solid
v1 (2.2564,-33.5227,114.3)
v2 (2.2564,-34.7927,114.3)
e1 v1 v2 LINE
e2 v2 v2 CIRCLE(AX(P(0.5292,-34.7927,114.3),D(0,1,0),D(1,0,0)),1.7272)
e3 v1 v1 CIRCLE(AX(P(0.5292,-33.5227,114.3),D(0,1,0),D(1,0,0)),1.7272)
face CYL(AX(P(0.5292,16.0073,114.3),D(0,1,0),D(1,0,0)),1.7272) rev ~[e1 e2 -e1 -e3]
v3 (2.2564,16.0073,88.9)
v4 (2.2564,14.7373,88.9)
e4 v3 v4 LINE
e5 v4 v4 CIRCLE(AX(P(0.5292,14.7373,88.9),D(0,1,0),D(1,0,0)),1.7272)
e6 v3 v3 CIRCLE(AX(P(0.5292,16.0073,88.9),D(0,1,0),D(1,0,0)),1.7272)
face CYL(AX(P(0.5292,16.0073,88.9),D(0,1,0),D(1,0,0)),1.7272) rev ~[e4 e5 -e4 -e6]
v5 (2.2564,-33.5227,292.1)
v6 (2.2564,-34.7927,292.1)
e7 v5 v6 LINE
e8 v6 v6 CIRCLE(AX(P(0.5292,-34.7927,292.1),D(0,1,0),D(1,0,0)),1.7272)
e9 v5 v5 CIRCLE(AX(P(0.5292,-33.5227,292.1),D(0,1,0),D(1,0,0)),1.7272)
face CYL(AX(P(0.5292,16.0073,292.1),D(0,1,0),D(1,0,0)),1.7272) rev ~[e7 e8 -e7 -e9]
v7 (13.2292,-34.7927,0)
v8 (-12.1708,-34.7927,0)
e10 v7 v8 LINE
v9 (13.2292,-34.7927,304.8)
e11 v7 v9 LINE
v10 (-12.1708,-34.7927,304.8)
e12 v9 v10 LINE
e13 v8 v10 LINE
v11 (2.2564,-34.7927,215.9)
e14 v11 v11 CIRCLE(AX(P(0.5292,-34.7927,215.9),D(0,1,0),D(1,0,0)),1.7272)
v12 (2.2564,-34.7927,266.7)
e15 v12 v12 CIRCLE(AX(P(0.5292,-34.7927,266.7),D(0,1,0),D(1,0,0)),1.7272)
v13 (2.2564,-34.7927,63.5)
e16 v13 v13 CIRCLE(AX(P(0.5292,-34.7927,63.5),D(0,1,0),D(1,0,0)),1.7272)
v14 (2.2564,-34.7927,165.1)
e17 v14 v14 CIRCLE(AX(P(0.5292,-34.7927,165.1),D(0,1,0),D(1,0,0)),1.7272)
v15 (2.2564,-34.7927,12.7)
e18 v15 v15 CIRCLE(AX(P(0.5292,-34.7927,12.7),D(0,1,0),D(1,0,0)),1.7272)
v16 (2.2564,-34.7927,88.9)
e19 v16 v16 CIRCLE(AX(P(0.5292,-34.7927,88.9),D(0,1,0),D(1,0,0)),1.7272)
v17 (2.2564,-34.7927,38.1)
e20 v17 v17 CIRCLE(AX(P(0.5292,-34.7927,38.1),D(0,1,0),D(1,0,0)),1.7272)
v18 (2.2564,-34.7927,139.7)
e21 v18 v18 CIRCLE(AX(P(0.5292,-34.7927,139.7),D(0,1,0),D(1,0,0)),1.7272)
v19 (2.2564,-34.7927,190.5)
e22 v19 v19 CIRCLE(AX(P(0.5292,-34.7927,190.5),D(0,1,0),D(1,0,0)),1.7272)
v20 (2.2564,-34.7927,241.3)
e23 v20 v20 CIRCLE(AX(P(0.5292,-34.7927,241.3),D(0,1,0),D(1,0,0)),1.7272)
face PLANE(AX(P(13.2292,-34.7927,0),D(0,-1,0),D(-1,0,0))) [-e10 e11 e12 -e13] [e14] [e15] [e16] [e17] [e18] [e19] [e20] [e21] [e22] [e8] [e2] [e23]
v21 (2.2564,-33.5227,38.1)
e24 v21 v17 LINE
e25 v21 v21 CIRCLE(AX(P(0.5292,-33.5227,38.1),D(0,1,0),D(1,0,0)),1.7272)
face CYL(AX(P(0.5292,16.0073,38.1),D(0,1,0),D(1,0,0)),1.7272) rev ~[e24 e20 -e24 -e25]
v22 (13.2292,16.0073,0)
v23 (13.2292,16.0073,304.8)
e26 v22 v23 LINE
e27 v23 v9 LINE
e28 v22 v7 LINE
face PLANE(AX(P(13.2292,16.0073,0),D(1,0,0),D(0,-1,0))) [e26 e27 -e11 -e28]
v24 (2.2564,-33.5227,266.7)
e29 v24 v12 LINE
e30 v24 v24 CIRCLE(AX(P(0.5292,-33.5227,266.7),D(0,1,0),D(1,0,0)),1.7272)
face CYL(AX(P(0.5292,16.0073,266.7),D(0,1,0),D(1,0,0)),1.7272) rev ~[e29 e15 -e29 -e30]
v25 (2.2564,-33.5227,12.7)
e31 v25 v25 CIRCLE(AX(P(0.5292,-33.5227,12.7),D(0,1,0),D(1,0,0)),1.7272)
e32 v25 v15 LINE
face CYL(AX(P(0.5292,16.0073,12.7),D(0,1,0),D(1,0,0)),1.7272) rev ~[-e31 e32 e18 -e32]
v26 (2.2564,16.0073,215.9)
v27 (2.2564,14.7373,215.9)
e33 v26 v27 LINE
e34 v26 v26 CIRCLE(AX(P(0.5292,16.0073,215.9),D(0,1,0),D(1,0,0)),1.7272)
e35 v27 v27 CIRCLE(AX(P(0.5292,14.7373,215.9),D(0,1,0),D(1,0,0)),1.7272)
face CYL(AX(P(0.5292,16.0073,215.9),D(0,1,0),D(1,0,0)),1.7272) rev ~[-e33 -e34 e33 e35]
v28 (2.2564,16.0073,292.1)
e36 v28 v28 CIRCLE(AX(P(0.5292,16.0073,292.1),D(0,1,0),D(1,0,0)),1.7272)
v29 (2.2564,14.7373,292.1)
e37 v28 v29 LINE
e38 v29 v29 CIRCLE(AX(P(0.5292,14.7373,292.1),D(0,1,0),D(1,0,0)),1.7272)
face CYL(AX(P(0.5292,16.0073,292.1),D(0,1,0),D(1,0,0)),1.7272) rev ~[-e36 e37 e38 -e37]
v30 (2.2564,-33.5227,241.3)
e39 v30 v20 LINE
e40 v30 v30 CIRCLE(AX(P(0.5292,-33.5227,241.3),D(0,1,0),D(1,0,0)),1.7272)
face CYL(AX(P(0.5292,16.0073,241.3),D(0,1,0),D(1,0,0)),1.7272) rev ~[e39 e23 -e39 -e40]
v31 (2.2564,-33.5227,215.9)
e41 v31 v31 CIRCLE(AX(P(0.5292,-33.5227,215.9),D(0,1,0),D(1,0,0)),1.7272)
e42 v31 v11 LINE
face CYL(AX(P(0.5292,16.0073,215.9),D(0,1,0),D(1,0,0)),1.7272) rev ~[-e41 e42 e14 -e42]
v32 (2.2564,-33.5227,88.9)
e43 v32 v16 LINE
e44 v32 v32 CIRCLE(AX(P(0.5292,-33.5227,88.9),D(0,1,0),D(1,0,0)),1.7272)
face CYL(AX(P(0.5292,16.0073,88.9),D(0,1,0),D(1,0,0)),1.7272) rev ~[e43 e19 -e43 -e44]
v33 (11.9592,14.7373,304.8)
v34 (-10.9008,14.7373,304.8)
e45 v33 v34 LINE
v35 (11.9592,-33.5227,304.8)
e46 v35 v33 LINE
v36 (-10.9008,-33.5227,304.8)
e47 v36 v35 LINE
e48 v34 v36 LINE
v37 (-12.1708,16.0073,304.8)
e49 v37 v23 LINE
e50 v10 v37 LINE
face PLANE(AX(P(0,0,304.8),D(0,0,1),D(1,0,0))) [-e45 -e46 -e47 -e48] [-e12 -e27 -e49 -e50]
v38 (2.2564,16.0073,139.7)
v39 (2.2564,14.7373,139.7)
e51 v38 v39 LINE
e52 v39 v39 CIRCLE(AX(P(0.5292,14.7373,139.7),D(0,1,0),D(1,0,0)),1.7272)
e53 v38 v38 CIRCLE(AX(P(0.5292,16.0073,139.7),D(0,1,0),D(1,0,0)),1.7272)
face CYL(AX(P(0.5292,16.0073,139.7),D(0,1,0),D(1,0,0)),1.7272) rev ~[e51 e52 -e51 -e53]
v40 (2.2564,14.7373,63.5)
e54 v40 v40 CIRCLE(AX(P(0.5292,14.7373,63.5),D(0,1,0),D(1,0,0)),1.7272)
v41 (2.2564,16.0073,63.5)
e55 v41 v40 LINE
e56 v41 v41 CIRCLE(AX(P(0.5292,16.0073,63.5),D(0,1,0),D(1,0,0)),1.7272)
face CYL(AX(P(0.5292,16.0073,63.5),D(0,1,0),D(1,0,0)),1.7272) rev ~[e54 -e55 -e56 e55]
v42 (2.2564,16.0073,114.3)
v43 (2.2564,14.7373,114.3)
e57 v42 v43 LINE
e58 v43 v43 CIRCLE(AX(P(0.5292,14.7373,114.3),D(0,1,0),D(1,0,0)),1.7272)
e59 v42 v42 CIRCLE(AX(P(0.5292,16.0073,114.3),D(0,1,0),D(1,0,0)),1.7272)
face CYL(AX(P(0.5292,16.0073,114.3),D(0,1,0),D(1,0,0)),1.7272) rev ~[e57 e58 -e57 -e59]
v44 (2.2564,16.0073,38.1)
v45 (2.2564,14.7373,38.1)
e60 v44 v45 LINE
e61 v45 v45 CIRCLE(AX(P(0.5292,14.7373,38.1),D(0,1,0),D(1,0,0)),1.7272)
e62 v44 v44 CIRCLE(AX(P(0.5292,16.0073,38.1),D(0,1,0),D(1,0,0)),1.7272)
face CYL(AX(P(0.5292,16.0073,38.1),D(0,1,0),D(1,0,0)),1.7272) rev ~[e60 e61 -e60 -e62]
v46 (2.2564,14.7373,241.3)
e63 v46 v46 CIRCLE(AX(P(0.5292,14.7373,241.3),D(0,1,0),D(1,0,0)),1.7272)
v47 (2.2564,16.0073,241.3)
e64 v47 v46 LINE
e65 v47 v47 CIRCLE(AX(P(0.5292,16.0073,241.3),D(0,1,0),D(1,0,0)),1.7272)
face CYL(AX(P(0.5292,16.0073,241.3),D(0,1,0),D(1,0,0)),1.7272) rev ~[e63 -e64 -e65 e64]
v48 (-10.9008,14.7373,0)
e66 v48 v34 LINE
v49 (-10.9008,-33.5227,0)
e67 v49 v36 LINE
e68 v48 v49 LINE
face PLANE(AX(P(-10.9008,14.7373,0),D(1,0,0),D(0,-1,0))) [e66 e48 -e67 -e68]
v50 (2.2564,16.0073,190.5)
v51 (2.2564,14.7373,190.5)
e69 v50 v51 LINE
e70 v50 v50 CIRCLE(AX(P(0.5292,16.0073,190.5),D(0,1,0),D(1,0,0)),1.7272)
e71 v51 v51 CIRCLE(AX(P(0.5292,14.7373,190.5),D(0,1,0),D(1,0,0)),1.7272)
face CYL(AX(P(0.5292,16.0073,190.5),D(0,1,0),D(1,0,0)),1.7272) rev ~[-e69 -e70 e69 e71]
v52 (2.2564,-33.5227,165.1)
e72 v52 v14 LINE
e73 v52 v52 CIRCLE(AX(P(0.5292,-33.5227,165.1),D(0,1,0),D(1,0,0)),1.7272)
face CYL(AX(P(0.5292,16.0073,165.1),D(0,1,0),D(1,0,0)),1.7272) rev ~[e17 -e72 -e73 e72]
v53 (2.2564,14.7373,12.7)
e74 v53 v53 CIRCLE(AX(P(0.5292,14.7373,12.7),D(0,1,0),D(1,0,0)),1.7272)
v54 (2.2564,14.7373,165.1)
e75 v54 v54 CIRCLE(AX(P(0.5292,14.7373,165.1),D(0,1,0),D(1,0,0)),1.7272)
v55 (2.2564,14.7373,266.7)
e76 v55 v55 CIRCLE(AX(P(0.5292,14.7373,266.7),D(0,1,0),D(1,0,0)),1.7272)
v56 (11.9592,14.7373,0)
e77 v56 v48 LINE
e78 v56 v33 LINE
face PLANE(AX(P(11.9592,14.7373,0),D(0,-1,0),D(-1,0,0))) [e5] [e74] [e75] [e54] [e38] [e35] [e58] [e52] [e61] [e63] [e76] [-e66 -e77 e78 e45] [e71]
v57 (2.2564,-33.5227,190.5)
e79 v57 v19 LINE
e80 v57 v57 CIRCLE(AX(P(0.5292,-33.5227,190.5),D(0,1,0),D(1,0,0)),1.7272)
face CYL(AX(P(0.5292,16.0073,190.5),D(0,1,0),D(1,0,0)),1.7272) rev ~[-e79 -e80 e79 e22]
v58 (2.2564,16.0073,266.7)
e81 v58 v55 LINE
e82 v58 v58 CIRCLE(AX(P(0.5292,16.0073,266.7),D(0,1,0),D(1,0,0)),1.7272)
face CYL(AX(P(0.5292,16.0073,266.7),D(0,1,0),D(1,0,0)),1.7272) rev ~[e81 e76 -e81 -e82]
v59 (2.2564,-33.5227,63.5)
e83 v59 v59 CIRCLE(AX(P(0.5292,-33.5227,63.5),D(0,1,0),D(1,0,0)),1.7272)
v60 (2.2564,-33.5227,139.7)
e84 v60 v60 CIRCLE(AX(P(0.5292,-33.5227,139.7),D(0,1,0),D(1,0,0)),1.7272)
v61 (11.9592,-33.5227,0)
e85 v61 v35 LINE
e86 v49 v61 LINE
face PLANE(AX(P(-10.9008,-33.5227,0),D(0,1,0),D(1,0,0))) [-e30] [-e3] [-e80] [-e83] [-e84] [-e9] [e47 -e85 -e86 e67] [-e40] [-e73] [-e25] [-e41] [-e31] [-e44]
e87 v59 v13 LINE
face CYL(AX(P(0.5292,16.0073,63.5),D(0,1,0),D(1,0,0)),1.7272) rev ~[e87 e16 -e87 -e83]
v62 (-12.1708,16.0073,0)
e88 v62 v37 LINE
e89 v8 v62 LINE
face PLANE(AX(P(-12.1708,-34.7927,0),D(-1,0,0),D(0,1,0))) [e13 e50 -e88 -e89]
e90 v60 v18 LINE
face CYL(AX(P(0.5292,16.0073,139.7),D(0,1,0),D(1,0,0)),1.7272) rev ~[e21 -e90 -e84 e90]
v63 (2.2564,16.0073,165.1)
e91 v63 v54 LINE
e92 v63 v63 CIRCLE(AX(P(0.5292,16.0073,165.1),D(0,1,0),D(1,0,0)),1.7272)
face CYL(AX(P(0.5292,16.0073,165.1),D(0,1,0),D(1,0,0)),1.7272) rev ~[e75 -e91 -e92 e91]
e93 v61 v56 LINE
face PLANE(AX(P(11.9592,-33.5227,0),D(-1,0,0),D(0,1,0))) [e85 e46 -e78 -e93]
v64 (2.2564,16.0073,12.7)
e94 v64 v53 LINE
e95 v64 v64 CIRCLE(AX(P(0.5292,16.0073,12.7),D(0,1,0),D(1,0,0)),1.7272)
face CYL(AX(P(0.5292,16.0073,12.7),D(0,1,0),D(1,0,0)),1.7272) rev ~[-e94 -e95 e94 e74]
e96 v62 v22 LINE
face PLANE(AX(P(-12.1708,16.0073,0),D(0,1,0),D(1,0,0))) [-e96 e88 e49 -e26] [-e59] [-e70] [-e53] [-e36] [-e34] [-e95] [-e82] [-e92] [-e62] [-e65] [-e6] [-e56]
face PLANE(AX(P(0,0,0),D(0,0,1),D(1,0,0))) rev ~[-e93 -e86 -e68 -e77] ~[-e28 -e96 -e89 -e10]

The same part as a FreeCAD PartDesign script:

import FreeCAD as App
import Part
import Sketcher
Q = App.Units.Quantity

doc = App.newDocument("Part")
params = doc.addObject("Spreadsheet::Sheet", "Params")
for row, (alias, value) in enumerate([
    ("sketch1_width", "1 in"),
    ("sketch1_height", "2 in"),
    ("pad1_length", "12 in"),
    ("sketch2_diameter", "0.136 in"),
    ("linearpattern_pitch", "1 in"),
], start=1):
    params.set(f"A{row}", alias)
    params.set(f"B{row}", "=" + value)
    params.setAlias(f"B{row}", alias)

body = doc.addObject("PartDesign::Body", "Body")

# Sketch on XY plane
sketch1 = body.newObject("Sketcher::SketchObject", "Sketch")
sketch1.AttachmentSupport = (doc.getObject("XY_Plane"), [""])
sketch1.MapMode = "FlatFace"
sketch1.addGeometry(Part.LineSegment(App.Vector(13.2292, 16.0073, 0), App.Vector(-12.1708, 16.0073, 0)), False)
sketch1.addGeometry(Part.LineSegment(App.Vector(-12.1708, 16.0073, 0), App.Vector(-12.1708, -34.7927, 0)), False)
sketch1.addGeometry(Part.LineSegment(App.Vector(-12.1708, -34.7927, 0), App.Vector(13.2292, -34.7927, 0)), False)
sketch1.addGeometry(Part.LineSegment(App.Vector(13.2292, -34.7927, 0), App.Vector(13.2292, 16.0073, 0)), False)
sketch1.addGeometry(Part.LineSegment(App.Vector(-10.9008, 14.7373, 0), App.Vector(11.9592, 14.7373, 0)), False)
sketch1.addGeometry(Part.LineSegment(App.Vector(11.9592, 14.7373, 0), App.Vector(11.9592, -33.5227, 0)), False)
sketch1.addGeometry(Part.LineSegment(App.Vector(11.9592, -33.5227, 0), App.Vector(-10.9008, -33.5227, 0)), False)
sketch1.addGeometry(Part.LineSegment(App.Vector(-10.9008, -33.5227, 0), App.Vector(-10.9008, 14.7373, 0)), False)
sketch1.addConstraint(Sketcher.Constraint("Coincident", 0, 2, 1, 1))
sketch1.addConstraint(Sketcher.Constraint("Coincident", 1, 2, 2, 1))
sketch1.addConstraint(Sketcher.Constraint("Coincident", 2, 2, 3, 1))
sketch1.addConstraint(Sketcher.Constraint("Coincident", 3, 2, 0, 1))
sketch1.addConstraint(Sketcher.Constraint("Coincident", 4, 2, 5, 1))
sketch1.addConstraint(Sketcher.Constraint("Coincident", 5, 2, 6, 1))
sketch1.addConstraint(Sketcher.Constraint("Coincident", 6, 2, 7, 1))
sketch1.addConstraint(Sketcher.Constraint("Coincident", 7, 2, 4, 1))
sketch1.addConstraint(Sketcher.Constraint("Horizontal", 0))
sketch1.addConstraint(Sketcher.Constraint("Vertical", 1))
sketch1.addConstraint(Sketcher.Constraint("Horizontal", 2))
sketch1.addConstraint(Sketcher.Constraint("Vertical", 3))
sketch1.addConstraint(Sketcher.Constraint("Horizontal", 4))
sketch1.addConstraint(Sketcher.Constraint("Vertical", 5))
sketch1.addConstraint(Sketcher.Constraint("Horizontal", 6))
sketch1.addConstraint(Sketcher.Constraint("Vertical", 7))
sketch1.addConstraint(Sketcher.Constraint("DistanceX", 0, 2, 0, 1, Q("1 in")))
sketch1.addConstraint(Sketcher.Constraint("DistanceY", 1, 2, 1, 1, Q("2 in")))
sketch1.addConstraint(Sketcher.Constraint("DistanceX", 4, 2, 3, 2, Q("0.05 in")))
sketch1.addConstraint(Sketcher.Constraint("DistanceY", 4, 2, 3, 2, Q("0.05 in")))
sketch1.addConstraint(Sketcher.Constraint("DistanceY", 2, 2, 5, 2, Q("0.05 in")))
sketch1.addConstraint(Sketcher.Constraint("DistanceX", 1, 2, 6, 2, Q("0.05 in")))
sketch1.addConstraint(Sketcher.Constraint("DistanceY", -1, 1, 0, 2, Q("0.6302 in")))
sketch1.addConstraint(Sketcher.Constraint("DistanceX", 0, 2, -1, 1, 12.1708))
sketch1.setExpression("Constraints[16]", "Params.sketch1_width")
sketch1.setExpression("Constraints[17]", "Params.sketch1_height")
pad1 = body.newObject("PartDesign::Pad", "Pad")
pad1.Profile = sketch1
pad1.setExpression("Length", "Params.pad1_length")

# Sketch on XZ plane
sketch2 = body.newObject("Sketcher::SketchObject", "Sketch001")
sketch2.AttachmentSupport = (doc.getObject("XZ_Plane"), [""])
sketch2.MapMode = "FlatFace"
sketch2.AttachmentOffset = App.Placement(App.Vector(0, 0, -0.6302087 * 25.4), App.Rotation())
sketch2.addGeometry(Part.Circle(App.Vector(0.5292, 12.7, 0), App.Vector(0, 0, 1), 1.7272), False)
sketch2.addConstraint(Sketcher.Constraint("Diameter", 0, Q("0.136 in")))
sketch2.addConstraint(Sketcher.Constraint("DistanceY", -1, 1, 0, 3, Q("0.5 in")))
sketch2.addConstraint(Sketcher.Constraint("DistanceX", -1, 1, 0, 3, 0.5292))
sketch2.setExpression("Constraints[0]", "Params.sketch2_diameter")
pocket1 = body.newObject("PartDesign::Pocket", "Pocket")
pocket1.Profile = sketch2
pocket1.Type = "ThroughAll"
pocket1.Reversed = True
doc.recompute()

linearpattern = body.newObject("PartDesign::LinearPattern", "LinearPattern")
linearpattern.Originals = [pocket1]
linearpattern.Direction = (doc.getObject("Z_Axis"), [""])
linearpattern.Mode = "offset"
linearpattern.setExpression("Offset", "Params.linearpattern_pitch")
linearpattern.Occurrences = 12
body.Tip = linearpattern

doc.recompute()
